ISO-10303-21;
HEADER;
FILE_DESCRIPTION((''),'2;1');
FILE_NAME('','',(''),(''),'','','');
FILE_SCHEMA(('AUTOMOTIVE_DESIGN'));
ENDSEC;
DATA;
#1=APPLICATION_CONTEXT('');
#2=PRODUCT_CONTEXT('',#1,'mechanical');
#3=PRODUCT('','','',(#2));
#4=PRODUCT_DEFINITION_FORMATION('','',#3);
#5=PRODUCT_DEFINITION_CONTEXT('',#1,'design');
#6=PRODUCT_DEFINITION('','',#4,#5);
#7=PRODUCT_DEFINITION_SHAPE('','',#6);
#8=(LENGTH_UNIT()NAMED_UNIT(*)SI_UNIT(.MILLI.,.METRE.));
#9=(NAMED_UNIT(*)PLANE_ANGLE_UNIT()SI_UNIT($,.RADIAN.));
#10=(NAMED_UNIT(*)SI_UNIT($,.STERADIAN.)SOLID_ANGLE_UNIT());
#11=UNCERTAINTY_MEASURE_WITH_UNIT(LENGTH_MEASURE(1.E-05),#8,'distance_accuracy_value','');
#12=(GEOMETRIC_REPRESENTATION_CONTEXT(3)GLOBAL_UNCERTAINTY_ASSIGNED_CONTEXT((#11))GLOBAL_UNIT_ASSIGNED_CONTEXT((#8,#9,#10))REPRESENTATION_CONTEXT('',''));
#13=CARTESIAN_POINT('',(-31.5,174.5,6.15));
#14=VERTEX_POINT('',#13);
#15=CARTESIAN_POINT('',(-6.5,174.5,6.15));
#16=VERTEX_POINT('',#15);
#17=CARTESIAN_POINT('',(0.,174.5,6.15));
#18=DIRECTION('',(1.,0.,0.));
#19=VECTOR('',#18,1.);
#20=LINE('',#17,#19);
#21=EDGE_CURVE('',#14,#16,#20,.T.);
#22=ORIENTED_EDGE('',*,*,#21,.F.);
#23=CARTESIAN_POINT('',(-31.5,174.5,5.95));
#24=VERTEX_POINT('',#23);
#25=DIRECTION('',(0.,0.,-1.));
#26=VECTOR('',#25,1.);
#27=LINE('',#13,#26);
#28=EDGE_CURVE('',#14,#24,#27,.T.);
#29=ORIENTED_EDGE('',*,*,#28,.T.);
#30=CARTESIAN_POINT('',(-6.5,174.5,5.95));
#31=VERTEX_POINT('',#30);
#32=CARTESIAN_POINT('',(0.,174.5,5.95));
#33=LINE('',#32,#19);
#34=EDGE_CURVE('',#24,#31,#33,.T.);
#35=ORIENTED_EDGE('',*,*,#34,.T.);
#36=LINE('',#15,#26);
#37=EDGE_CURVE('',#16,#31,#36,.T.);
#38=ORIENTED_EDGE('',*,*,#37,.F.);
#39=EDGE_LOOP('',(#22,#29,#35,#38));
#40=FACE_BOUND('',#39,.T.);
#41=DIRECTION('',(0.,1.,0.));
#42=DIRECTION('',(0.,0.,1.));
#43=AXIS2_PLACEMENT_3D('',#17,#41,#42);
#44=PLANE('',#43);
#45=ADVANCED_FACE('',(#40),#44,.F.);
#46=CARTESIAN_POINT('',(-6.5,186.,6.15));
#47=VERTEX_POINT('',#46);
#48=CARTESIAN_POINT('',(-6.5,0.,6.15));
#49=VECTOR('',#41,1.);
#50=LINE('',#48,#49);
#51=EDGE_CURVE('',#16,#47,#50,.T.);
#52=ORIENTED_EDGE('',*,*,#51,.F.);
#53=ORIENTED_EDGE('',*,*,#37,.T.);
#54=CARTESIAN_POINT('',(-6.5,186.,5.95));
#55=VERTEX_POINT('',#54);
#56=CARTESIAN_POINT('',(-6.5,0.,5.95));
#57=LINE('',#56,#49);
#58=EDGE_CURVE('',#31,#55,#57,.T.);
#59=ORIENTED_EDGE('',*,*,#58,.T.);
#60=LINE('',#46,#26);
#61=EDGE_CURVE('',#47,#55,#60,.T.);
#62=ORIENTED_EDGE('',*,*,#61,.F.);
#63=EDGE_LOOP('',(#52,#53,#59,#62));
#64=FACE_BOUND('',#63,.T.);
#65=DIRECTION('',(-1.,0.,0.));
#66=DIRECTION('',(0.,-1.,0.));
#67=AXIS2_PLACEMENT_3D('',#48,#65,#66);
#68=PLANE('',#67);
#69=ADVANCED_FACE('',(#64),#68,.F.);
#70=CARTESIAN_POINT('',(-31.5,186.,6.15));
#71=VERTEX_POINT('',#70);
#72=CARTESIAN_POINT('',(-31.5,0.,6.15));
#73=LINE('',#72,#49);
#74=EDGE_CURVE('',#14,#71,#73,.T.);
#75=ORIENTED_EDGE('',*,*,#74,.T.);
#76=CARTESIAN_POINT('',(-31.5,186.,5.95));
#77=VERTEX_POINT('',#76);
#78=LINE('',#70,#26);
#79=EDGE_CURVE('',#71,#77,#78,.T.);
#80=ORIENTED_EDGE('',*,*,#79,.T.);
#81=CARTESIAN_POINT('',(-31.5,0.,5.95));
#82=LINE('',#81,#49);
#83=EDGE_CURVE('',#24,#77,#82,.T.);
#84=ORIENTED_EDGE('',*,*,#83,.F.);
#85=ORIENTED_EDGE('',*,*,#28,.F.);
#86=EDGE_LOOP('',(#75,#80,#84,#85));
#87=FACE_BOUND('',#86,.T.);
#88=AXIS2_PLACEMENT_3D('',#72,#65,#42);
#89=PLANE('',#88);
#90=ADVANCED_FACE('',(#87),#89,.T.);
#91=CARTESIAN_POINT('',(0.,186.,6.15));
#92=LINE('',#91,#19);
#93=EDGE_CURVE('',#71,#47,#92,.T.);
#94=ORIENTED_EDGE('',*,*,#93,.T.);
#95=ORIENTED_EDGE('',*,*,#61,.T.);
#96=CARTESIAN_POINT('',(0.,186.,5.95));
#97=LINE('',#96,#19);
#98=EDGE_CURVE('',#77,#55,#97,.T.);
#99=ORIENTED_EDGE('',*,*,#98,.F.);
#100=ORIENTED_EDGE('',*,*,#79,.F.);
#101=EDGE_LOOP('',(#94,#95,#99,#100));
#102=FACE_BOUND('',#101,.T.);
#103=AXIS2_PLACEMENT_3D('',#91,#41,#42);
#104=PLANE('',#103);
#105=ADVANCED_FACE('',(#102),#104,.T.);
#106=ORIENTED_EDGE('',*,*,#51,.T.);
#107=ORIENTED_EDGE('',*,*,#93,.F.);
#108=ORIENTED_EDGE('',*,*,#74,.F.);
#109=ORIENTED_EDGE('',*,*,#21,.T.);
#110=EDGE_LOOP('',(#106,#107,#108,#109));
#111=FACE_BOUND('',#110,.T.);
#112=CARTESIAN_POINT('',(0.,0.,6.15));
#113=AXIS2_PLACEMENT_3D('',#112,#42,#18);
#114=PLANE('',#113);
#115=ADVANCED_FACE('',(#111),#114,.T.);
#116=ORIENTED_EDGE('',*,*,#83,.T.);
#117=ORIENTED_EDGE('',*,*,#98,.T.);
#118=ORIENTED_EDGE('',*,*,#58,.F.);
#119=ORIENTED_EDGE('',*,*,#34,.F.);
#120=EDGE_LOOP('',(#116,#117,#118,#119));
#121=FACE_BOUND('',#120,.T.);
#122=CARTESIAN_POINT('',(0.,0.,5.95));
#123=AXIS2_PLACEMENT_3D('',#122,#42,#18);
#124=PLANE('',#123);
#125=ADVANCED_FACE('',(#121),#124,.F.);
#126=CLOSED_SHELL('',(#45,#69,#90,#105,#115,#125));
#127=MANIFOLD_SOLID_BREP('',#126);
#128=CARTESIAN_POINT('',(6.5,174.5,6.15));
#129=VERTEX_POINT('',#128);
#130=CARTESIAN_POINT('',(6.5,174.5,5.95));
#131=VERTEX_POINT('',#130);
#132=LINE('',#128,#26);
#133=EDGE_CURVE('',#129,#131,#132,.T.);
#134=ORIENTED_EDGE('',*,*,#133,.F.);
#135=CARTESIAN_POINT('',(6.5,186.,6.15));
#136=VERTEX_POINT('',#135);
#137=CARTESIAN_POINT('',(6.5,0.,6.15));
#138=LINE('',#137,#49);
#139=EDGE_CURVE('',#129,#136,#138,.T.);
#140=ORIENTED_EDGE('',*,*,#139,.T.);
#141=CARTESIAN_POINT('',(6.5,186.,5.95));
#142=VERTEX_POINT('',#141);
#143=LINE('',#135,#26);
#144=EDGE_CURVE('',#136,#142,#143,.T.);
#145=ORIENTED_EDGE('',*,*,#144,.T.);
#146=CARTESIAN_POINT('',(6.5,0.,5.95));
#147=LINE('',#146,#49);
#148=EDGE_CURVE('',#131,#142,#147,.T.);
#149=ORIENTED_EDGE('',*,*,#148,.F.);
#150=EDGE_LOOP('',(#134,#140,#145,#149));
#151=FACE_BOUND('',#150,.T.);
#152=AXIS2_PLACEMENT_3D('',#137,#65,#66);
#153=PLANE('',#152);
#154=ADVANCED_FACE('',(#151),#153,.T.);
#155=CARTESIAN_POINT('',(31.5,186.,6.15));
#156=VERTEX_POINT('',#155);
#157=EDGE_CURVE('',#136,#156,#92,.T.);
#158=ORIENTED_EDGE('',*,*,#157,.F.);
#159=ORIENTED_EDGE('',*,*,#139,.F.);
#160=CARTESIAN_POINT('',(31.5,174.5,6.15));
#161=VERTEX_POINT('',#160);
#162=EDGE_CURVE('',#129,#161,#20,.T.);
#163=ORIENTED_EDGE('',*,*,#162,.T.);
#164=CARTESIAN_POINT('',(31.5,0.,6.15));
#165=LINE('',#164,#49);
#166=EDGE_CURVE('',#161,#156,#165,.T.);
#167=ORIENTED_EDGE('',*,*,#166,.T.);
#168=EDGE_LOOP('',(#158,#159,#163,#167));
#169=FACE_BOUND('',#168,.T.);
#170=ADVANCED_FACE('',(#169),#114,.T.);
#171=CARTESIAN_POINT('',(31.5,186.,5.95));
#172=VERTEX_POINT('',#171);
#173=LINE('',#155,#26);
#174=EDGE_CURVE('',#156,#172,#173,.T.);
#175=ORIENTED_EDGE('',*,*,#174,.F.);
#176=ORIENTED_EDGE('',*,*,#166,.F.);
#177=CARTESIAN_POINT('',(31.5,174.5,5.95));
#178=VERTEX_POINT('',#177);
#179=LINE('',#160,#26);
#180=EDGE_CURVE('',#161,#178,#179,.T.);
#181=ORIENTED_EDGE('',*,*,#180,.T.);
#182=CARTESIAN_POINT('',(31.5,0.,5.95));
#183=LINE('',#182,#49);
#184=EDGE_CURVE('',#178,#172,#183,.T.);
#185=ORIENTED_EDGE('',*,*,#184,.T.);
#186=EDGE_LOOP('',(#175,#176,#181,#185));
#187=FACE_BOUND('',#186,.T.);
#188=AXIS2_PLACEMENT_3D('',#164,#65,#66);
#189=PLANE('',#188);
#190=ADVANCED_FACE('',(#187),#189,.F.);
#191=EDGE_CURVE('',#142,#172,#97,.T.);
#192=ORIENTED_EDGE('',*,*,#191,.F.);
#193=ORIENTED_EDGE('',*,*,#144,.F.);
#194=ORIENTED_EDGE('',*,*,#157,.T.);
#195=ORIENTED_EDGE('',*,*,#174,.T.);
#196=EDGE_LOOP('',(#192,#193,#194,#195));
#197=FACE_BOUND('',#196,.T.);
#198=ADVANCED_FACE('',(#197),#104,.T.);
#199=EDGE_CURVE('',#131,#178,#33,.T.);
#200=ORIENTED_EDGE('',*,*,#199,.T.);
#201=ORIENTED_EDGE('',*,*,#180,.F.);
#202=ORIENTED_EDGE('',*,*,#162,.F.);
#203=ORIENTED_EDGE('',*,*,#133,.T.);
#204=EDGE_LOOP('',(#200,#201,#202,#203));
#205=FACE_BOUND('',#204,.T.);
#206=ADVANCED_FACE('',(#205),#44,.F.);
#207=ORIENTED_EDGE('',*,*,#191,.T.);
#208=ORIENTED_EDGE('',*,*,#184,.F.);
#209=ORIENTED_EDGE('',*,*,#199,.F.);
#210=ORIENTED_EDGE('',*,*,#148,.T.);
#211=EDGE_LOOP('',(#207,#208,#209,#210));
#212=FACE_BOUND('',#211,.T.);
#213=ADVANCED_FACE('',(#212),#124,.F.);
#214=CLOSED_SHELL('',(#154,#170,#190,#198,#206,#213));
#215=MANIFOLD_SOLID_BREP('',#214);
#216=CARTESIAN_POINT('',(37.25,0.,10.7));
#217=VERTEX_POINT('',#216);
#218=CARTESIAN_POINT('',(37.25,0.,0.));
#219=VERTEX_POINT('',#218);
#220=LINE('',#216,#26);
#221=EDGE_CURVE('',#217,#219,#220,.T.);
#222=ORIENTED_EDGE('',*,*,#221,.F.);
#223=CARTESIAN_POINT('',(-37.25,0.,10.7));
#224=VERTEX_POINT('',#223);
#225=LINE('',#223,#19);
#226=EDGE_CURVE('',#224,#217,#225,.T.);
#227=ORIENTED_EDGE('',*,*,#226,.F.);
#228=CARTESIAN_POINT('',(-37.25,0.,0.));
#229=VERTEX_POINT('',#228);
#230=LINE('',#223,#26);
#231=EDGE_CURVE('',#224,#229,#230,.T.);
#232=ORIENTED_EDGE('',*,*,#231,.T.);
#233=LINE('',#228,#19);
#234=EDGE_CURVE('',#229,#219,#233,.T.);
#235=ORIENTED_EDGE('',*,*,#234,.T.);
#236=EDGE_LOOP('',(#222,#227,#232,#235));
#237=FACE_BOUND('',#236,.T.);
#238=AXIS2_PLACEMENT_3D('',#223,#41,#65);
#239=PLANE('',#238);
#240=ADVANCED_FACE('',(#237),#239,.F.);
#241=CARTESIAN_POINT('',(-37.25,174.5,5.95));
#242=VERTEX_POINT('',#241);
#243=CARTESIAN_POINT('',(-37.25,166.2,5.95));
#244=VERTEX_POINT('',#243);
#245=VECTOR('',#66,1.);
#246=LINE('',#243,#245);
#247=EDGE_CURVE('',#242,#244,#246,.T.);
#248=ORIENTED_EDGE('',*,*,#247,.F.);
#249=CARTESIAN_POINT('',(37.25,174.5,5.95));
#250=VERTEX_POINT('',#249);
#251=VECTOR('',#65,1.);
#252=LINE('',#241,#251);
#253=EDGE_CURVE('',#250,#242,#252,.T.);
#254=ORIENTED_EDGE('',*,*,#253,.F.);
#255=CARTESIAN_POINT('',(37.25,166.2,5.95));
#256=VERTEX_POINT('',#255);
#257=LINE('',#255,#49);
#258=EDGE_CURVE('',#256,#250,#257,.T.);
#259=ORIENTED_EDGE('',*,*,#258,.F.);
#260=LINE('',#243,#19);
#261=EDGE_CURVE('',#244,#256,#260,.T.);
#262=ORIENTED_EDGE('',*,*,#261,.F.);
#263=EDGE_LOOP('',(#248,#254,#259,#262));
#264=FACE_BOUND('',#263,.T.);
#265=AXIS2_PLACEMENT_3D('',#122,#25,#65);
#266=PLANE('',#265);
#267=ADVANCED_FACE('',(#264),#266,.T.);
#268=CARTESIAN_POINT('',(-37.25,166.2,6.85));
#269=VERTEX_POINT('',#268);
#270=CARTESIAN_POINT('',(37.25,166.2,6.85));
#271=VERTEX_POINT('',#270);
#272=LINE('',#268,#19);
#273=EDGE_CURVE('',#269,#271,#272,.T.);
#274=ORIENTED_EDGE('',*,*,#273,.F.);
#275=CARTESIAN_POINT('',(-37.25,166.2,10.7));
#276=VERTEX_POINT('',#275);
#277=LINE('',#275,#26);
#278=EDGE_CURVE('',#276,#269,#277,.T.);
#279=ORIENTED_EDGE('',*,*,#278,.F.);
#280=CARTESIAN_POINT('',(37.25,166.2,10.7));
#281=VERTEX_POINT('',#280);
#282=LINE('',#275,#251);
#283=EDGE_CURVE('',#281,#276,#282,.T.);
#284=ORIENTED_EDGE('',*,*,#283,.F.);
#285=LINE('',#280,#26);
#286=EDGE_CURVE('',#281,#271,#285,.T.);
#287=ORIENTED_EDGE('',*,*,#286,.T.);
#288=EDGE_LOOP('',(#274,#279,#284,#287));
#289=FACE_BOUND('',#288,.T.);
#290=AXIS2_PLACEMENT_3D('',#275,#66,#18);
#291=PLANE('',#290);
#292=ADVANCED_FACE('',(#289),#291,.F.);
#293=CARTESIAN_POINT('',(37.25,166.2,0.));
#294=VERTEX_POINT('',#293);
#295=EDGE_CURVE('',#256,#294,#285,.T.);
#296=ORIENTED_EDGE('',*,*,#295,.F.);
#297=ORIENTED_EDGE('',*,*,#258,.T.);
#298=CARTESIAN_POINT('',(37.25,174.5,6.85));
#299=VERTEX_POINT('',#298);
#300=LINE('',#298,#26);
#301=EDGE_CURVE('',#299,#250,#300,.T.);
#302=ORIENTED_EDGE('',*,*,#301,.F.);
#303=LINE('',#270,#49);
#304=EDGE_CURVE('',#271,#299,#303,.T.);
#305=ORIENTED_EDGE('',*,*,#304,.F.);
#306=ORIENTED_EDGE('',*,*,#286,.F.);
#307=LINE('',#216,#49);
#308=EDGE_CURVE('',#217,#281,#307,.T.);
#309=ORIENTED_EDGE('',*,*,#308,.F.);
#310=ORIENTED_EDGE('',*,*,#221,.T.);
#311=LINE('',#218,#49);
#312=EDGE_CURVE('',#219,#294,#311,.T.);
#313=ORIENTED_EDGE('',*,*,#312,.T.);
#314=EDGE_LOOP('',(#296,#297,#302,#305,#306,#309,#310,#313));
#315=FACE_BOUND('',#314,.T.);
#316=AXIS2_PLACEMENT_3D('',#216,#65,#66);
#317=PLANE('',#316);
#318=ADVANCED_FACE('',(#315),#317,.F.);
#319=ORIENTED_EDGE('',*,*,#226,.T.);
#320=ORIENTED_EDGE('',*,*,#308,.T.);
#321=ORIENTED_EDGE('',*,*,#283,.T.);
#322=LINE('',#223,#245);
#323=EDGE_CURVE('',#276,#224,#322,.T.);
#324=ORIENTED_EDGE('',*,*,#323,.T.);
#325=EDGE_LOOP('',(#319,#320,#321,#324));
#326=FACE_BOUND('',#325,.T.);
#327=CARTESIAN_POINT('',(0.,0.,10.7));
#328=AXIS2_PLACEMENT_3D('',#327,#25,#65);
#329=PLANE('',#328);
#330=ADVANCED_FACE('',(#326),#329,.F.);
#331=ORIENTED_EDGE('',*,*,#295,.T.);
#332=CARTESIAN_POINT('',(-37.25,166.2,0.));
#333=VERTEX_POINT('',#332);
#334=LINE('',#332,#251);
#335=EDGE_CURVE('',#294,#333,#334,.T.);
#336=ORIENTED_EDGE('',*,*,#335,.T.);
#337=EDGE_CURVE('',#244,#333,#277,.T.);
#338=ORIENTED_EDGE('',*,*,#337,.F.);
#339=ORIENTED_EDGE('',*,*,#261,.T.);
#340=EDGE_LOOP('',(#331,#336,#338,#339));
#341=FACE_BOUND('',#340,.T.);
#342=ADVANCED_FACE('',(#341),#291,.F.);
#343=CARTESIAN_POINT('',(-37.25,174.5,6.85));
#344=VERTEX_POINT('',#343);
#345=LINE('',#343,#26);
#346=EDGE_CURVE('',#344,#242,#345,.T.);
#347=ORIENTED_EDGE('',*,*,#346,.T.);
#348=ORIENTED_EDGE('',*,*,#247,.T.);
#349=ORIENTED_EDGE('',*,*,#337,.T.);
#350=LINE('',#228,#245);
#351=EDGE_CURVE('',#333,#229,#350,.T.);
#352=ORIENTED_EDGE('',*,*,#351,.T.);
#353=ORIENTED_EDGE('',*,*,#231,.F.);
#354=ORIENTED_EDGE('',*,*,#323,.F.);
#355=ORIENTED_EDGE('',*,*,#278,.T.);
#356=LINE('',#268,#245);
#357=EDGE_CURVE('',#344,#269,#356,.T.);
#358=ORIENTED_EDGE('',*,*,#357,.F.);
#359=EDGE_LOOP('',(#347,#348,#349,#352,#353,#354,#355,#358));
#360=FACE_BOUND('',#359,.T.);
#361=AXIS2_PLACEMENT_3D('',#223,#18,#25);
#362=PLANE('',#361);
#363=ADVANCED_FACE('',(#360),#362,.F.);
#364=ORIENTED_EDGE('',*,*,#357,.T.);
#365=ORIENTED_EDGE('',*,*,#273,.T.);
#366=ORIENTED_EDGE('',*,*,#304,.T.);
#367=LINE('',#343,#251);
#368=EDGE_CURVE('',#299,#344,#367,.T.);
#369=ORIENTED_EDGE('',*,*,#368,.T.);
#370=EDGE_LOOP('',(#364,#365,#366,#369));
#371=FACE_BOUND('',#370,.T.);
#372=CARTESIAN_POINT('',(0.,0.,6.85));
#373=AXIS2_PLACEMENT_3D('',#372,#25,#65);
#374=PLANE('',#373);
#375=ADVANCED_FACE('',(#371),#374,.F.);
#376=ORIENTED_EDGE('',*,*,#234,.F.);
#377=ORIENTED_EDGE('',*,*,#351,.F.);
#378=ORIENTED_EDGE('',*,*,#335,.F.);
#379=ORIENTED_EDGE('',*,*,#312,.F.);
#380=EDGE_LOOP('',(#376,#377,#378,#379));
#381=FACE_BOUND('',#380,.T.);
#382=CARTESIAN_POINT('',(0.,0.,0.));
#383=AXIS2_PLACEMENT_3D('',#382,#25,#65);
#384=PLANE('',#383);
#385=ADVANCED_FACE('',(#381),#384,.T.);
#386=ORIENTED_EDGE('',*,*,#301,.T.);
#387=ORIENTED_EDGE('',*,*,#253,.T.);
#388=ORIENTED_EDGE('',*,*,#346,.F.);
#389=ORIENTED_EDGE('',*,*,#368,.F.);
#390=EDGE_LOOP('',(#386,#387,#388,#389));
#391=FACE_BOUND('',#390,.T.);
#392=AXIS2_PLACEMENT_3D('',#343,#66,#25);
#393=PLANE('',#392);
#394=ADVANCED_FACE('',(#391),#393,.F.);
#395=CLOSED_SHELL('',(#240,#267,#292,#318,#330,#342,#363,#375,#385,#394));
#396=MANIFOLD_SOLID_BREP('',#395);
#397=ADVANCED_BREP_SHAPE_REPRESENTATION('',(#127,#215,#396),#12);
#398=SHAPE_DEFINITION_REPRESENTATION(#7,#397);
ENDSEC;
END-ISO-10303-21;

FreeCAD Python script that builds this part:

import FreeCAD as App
import Part
import Sketcher
Q = App.Units.Quantity


def add_polygon(sketch, points):
    """Adds a closed chain of lines whose ends are joined by coincident constraints."""
    first, n = sketch.GeometryCount, len(points)
    for a, b in zip(points, points[1:] + points[:1]):
        sketch.addGeometry(Part.LineSegment(App.Vector(*a, 0), App.Vector(*b, 0)), False)
    for i in range(n):
        sketch.addConstraint(Sketcher.Constraint("Coincident", first + i, 2, first + (i + 1) % n, 1))

doc = App.newDocument("Part")
params = doc.addObject("Spreadsheet::Sheet", "Params")
for row, (alias, value) in enumerate([
    ("sketch1_width", "74.5 mm"),
    ("sketch1_height", "166.2 mm"),
    ("pad1_length", "10.7 mm"),
    ("sketch2_width", "74.5 mm"),
    ("sketch2_height", "8.3 mm"),
    ("pad2_length", "0.9 mm"),
    ("sketch3_width", "25 mm"),
    ("sketch3_height", "11.5 mm"),
    ("pad3_length", "0.2 mm"),
    ("sketch4_width", "25 mm"),
    ("sketch4_height", "11.5 mm"),
    ("pad4_length", "0.2 mm"),
], start=1):
    params.set(f"A{row}", alias)
    params.set(f"B{row}", "=" + value)
    params.setAlias(f"B{row}", alias)

body = doc.addObject("PartDesign::Body", "Body")

# Sketch on XY plane
sketch1 = doc.addObject("Sketcher::SketchObject", "Sketch")
body.addObject(sketch1)
sketch1.AttachmentSupport = (doc.XY_Plane, [""])
sketch1.MapMode = "FlatFace"
add_polygon(sketch1, [(-37.25, 166.2), (-37.25, 0), (37.25, 0), (37.25, 166.2)])  # lines 0-3
sketch1.addConstraint(Sketcher.Constraint("Vertical", 0))
sketch1.addConstraint(Sketcher.Constraint("Horizontal", 1))
sketch1.addConstraint(Sketcher.Constraint("Vertical", 2))
sketch1.addConstraint(Sketcher.Constraint("Horizontal", 3))
sketch1.addConstraint(Sketcher.Constraint("Symmetric", 0, 2, 1, 2, -1, 1))
sketch1.addConstraint(Sketcher.Constraint("DistanceX", 1, 1, 1, 2, Q("74.5 mm")))
sketch1.addConstraint(Sketcher.Constraint("DistanceY", 0, 2, 0, 1, Q("166.2 mm")))
sketch1.setExpression("Constraints[9]", "Params.sketch1_width")
sketch1.setExpression("Constraints[10]", "Params.sketch1_height")
pad1 = doc.addObject("PartDesign::Pad", "Pad")
body.addObject(pad1)
pad1.Profile = sketch1
pad1.setExpression("Length", "Params.pad1_length")

# Sketch on XY plane
sketch2 = doc.addObject("Sketcher::SketchObject", "Sketch001")
body.addObject(sketch2)
sketch2.AttachmentSupport = (doc.XY_Plane, [""])
sketch2.MapMode = "FlatFace"
sketch2.AttachmentOffset = App.Placement(App.Vector(0, 0, 5.95), App.Rotation())
add_polygon(sketch2, [(-37.25, 174.5), (-37.25, 166.2), (37.25, 166.2), (37.25, 174.5)])  # lines 0-3
sketch2.addConstraint(Sketcher.Constraint("Vertical", 0))
sketch2.addConstraint(Sketcher.Constraint("Horizontal", 1))
sketch2.addConstraint(Sketcher.Constraint("Vertical", 2))
sketch2.addConstraint(Sketcher.Constraint("Horizontal", 3))
sketch2.addConstraint(Sketcher.Constraint("DistanceX", 1, 1, 1, 2, Q("74.5 mm")))
sketch2.addConstraint(Sketcher.Constraint("DistanceY", 0, 2, 0, 1, Q("8.3 mm")))
sketch2.addConstraint(Sketcher.Constraint("DistanceY", -1, 1, 0, 2, Q("166.2 mm")))
sketch2.addConstraint(Sketcher.Constraint("DistanceX", 0, 2, -1, 1, Q("37.25 mm")))
sketch2.setExpression("Constraints[8]", "Params.sketch2_width")
sketch2.setExpression("Constraints[9]", "Params.sketch2_height")
pad2 = doc.addObject("PartDesign::Pad", "Pad001")
body.addObject(pad2)
pad2.Profile = sketch2
pad2.setExpression("Length", "Params.pad2_length")
body2 = doc.addObject("PartDesign::Body", "Body001")

# Sketch on XY plane
sketch3 = doc.addObject("Sketcher::SketchObject", "Sketch002")
body2.addObject(sketch3)
sketch3.AttachmentSupport = (doc.getObject("XY_Plane001"), [""])
sketch3.MapMode = "FlatFace"
sketch3.AttachmentOffset = App.Placement(App.Vector(0, 0, 5.95), App.Rotation())
add_polygon(sketch3, [(-31.5, 186), (-31.5, 174.5), (-6.5, 174.5), (-6.5, 186)])  # lines 0-3
sketch3.addConstraint(Sketcher.Constraint("Vertical", 0))
sketch3.addConstraint(Sketcher.Constraint("Horizontal", 1))
sketch3.addConstraint(Sketcher.Constraint("Vertical", 2))
sketch3.addConstraint(Sketcher.Constraint("Horizontal", 3))
sketch3.addConstraint(Sketcher.Constraint("DistanceX", 1, 1, 1, 2, Q("25 mm")))
sketch3.addConstraint(Sketcher.Constraint("DistanceY", 0, 2, 0, 1, Q("11.5 mm")))
sketch3.addConstraint(Sketcher.Constraint("DistanceY", -1, 1, 2, 2, Q("186 mm")))
sketch3.addConstraint(Sketcher.Constraint("DistanceX", 0, 2, -1, 1, Q("31.5 mm")))
sketch3.setExpression("Constraints[8]", "Params.sketch3_width")
sketch3.setExpression("Constraints[9]", "Params.sketch3_height")
pad3 = doc.addObject("PartDesign::Pad", "Pad002")
body2.addObject(pad3)
pad3.Profile = sketch3
pad3.setExpression("Length", "Params.pad3_length")
body3 = doc.addObject("PartDesign::Body", "Body002")

# Sketch on XY plane
sketch4 = doc.addObject("Sketcher::SketchObject", "Sketch003")
body3.addObject(sketch4)
sketch4.AttachmentSupport = (doc.getObject("XY_Plane002"), [""])
sketch4.MapMode = "FlatFace"
sketch4.AttachmentOffset = App.Placement(App.Vector(0, 0, 5.95), App.Rotation())
add_polygon(sketch4, [(6.5, 186), (6.5, 174.5), (31.5, 174.5), (31.5, 186)])  # lines 0-3
sketch4.addConstraint(Sketcher.Constraint("Vertical", 0))
sketch4.addConstraint(Sketcher.Constraint("Horizontal", 1))
sketch4.addConstraint(Sketcher.Constraint("Vertical", 2))
sketch4.addConstraint(Sketcher.Constraint("Horizontal", 3))
sketch4.addConstraint(Sketcher.Constraint("DistanceX", 1, 1, 1, 2, Q("25 mm")))
sketch4.addConstraint(Sketcher.Constraint("DistanceY", 0, 2, 0, 1, Q("11.5 mm")))
sketch4.addConstraint(Sketcher.Constraint("DistanceY", -1, 1, 2, 2, Q("186 mm")))
sketch4.addConstraint(Sketcher.Constraint("DistanceX", -1, 1, 0, 2, Q("6.5 mm")))
sketch4.setExpression("Constraints[8]", "Params.sketch4_width")
sketch4.setExpression("Constraints[9]", "Params.sketch4_height")
pad4 = doc.addObject("PartDesign::Pad", "Pad003")
body3.addObject(pad4)
pad4.Profile = sketch4
pad4.setExpression("Length", "Params.pad4_length")

doc.recompute()
